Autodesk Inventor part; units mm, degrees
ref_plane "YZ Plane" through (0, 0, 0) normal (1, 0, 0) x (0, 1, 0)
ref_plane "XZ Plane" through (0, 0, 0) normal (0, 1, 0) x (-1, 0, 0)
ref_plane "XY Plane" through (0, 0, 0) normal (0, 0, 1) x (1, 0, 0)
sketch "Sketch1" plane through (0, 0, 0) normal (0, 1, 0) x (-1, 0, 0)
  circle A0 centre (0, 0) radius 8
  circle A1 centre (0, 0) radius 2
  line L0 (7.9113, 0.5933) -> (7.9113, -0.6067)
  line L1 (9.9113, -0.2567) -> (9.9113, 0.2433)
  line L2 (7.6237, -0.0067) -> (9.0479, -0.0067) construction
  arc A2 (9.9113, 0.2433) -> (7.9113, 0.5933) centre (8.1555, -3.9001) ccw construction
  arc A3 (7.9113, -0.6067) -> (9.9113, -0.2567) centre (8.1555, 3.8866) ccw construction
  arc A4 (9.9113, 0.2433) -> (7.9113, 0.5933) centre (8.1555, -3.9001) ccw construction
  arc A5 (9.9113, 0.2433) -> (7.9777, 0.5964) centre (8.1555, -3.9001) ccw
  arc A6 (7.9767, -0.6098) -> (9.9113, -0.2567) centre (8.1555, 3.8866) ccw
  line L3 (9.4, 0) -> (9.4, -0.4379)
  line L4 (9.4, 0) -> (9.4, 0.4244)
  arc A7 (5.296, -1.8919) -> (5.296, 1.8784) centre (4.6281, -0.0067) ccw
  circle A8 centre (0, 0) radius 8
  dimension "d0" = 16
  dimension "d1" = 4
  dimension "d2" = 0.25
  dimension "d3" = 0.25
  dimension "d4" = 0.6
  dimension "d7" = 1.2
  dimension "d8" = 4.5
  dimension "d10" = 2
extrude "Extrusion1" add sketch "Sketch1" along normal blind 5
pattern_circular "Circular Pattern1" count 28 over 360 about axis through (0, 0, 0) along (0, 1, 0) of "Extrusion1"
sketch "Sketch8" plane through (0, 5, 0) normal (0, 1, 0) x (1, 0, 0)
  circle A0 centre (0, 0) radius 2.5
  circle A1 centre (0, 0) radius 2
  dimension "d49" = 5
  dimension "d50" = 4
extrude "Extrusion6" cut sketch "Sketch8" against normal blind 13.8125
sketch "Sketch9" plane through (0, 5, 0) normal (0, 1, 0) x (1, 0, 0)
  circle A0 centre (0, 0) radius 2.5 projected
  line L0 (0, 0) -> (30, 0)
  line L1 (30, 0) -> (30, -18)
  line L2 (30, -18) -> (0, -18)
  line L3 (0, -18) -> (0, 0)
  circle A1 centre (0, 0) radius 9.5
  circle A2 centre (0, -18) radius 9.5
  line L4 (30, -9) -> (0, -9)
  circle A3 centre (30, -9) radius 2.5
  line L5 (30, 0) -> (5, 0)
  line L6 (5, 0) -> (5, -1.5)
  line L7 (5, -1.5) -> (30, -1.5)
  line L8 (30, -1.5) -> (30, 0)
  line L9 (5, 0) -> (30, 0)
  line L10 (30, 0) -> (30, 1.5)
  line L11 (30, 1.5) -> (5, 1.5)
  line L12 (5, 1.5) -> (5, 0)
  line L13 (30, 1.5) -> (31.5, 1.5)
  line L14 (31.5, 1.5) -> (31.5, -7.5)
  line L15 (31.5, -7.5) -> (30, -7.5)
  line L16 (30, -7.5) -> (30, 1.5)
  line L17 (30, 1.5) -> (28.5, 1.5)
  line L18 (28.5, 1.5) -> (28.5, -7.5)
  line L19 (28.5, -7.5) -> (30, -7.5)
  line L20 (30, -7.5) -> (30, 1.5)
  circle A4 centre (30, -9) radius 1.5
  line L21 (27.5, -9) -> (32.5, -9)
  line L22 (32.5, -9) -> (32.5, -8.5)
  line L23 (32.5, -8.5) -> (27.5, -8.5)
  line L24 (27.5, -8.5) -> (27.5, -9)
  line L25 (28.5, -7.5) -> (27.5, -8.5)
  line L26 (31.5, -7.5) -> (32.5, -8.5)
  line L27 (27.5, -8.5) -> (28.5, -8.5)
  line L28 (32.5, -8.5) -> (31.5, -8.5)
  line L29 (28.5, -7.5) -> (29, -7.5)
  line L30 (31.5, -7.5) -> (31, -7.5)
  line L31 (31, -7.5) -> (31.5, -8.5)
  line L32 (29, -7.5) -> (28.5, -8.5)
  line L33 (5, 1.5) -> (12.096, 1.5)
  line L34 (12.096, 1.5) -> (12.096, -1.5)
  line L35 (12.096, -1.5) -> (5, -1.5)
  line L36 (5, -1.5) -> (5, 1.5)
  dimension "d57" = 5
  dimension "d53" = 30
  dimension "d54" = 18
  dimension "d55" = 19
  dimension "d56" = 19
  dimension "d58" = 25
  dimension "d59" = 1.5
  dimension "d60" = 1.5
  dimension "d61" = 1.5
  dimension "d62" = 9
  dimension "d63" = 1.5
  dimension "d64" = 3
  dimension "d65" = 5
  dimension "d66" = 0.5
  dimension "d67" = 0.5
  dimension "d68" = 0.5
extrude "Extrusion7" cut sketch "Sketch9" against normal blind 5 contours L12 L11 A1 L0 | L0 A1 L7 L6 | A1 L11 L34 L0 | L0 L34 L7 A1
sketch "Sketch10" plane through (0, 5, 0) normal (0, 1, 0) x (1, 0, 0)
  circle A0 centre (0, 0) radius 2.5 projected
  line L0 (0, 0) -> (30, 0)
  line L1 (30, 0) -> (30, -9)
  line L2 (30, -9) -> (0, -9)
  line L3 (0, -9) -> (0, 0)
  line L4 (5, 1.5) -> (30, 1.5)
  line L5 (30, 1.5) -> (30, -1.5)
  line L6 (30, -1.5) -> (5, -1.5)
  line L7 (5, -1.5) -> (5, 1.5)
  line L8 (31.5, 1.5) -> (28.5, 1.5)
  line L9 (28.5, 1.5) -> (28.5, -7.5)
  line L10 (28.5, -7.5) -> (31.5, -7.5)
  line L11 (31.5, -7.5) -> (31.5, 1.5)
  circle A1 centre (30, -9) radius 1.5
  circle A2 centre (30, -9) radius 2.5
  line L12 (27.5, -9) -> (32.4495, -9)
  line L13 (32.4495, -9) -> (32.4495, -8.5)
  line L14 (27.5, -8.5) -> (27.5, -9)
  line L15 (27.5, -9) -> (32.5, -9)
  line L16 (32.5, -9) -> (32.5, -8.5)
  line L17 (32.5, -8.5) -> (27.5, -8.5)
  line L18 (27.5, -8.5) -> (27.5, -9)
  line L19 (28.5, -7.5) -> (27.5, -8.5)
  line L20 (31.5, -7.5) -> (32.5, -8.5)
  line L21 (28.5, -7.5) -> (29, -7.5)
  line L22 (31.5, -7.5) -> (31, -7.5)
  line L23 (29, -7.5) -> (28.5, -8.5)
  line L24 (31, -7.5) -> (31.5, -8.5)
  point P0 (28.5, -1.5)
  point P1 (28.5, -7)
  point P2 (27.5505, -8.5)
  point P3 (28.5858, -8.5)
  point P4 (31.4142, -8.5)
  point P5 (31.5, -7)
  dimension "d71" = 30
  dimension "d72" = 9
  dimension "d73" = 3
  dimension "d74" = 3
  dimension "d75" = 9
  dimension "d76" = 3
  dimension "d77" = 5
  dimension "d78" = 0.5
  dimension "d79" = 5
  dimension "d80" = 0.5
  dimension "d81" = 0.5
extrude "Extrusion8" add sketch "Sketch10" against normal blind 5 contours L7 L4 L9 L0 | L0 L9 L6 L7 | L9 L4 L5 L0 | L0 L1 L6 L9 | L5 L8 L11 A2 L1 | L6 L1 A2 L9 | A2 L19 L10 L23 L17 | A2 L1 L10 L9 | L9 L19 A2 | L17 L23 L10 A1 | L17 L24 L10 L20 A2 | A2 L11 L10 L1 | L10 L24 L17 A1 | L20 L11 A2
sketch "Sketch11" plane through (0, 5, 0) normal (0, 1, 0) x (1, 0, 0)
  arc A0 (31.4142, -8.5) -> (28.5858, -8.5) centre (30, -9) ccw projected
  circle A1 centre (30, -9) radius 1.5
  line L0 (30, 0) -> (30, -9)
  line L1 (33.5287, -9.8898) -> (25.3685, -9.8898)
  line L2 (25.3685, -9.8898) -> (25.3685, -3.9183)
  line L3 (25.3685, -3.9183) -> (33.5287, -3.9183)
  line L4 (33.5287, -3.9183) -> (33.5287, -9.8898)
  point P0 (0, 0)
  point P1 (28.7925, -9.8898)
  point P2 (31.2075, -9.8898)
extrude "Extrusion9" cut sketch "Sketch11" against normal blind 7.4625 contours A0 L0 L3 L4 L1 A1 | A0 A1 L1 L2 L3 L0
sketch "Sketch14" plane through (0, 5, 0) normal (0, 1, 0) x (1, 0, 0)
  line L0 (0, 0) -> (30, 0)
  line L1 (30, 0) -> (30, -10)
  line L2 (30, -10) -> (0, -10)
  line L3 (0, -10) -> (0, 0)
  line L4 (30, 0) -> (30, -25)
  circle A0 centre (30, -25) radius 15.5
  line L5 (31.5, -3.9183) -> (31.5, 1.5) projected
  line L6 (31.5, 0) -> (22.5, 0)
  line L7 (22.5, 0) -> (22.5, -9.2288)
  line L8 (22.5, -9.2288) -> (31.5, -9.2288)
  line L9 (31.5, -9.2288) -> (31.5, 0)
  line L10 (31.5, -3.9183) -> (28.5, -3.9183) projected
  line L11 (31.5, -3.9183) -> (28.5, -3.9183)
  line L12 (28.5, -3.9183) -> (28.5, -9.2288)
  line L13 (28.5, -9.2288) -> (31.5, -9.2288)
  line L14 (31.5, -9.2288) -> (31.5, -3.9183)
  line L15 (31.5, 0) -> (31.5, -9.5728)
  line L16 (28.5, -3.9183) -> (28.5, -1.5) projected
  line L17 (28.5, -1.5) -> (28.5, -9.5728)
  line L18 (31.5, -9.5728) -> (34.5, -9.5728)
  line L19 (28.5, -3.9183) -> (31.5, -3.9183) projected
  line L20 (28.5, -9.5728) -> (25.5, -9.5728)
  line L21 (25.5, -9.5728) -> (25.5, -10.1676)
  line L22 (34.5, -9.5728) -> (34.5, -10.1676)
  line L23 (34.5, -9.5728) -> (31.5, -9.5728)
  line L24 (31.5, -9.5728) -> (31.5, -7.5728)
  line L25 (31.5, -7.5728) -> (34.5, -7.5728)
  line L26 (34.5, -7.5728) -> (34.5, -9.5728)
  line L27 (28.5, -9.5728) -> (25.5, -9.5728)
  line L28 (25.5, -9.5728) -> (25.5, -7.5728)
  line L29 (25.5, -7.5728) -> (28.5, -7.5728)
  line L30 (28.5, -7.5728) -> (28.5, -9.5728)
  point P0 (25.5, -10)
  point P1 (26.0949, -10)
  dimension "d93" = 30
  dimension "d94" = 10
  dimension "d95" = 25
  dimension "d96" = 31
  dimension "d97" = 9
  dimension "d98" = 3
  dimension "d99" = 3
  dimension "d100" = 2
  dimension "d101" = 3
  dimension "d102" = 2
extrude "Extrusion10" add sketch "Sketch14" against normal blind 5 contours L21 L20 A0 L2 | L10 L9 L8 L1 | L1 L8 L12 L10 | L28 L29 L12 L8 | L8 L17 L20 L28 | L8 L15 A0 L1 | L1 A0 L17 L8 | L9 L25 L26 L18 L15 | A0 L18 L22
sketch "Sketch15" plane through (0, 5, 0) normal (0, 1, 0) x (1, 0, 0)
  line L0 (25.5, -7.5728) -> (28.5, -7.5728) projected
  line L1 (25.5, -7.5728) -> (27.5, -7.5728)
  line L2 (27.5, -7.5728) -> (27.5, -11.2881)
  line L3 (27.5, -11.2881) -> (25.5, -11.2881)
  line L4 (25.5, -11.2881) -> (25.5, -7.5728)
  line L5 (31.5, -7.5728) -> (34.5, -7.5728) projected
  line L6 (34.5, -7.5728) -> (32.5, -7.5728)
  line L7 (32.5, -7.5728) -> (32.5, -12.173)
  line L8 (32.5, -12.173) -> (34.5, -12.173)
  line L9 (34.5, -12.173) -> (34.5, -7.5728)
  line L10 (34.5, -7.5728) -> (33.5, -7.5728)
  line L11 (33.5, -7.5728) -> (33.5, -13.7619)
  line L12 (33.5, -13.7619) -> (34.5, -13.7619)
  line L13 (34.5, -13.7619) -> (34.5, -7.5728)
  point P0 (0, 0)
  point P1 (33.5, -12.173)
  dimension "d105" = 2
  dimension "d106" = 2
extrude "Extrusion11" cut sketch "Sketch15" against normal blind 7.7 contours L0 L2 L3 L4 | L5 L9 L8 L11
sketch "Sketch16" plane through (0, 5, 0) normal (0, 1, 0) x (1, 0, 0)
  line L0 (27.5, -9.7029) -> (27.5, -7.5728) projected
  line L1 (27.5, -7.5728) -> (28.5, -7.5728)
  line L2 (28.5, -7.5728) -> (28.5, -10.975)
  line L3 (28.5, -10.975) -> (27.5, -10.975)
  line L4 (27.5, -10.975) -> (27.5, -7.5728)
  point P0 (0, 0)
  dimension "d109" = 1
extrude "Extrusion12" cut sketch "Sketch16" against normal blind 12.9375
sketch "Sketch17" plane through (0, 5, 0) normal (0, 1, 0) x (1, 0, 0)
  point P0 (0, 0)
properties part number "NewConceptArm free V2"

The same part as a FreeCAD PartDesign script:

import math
import FreeCAD as App
import Part
import Sketcher
from FreeCAD import Vector


def add_polygon(sketch, points):
    """Adds a closed chain of lines whose ends are joined by coincident constraints."""
    first, n = sketch.GeometryCount, len(points)
    for a, b in zip(points, points[1:] + points[:1]):
        sketch.addGeometry(Part.LineSegment(App.Vector(*a, 0), App.Vector(*b, 0)), False)
    for i in range(n):
        sketch.addConstraint(Sketcher.Constraint("Coincident", first + i, 2, first + (i + 1) % n, 1))

doc = App.newDocument("Part")
body = doc.addObject("PartDesign::Body", "Body")

# Sketch on XZ plane
sketch1 = body.newObject("Sketcher::SketchObject", "Sketch")
sketch1.AttachmentSupport = (doc.getObject("XZ_Plane"), [""])
sketch1.MapMode = "FlatFace"
sketch1.addGeometry([
    Part.ArcOfCircle(Part.Circle(Vector(0, 0, 0), Vector(0, 0, 1), 8), math.radians(-176), math.radians(176)),  # 0
    Part.ArcOfCircle(Part.Circle(Vector(-8.2, 3.9, 0), Vector(0, 0, 1), 4.5), math.radians(-113), math.radians(-88)),  # 1
    Part.LineSegment(Vector(-9.9, -0.3, 0), Vector(-9.9, 0.2, 0)),  # 2
    Part.ArcOfCircle(Part.Circle(Vector(-8.2, -3.9, 0), Vector(0, 0, 1), 4.5), math.radians(88), math.radians(113)),  # 3
    Part.Circle(Vector(0, 0, 0), Vector(0, 0, 1), 2),  # 4
], False)
sketch1.addConstraint([
    Sketcher.Constraint("Coincident", 0, 1, 1, 2),
    Sketcher.Constraint("Coincident", 1, 1, 2, 1),
    Sketcher.Constraint("Coincident", 2, 2, 3, 2),
    Sketcher.Constraint("Coincident", 3, 1, 0, 2),
    Sketcher.Constraint("Vertical", 2),
    Sketcher.Constraint("Coincident", 0, 3, -1, 1),
    Sketcher.Constraint("Coincident", 4, 3, -1, 1),
    Sketcher.Constraint("Diameter", 4, 4.0),
    Sketcher.Constraint("Radius", 0, 8.0),
    Sketcher.Constraint("Radius", 1, 4.5),
    Sketcher.Constraint("DistanceY", 2, 1, 2, 2, 0.5),
    Sketcher.Constraint("Radius", 3, 4.499),
    Sketcher.Constraint("DistanceY", 3, 3, -1, 1, 3.899),
    Sketcher.Constraint("DistanceX", 3, 3, 0, 1, 0.179),
    Sketcher.Constraint("DistanceY", 0, 1, 2, 2, 0.853),
    Sketcher.Constraint("DistanceX", 3, 1, 0, 1, 0.001),
])
pad1 = body.newObject("PartDesign::Pad", "Pad")
pad1.Profile = sketch1
pad1.Length = 5
pad1.Reversed = True
doc.recompute()

polarpattern = body.newObject("PartDesign::PolarPattern", "PolarPattern")
polarpattern.Originals = [pad1]
polarpattern.Axis = (doc.getObject("Y_Axis"), [""])
polarpattern.Angle = 360
polarpattern.Occurrences = 28
body.Tip = polarpattern

# Sketch on XZ plane
sketch2 = body.newObject("Sketcher::SketchObject", "Sketch001")
sketch2.AttachmentSupport = (doc.getObject("XZ_Plane"), [""])
sketch2.MapMode = "FlatFace"
sketch2.AttachmentOffset = App.Placement(Vector(0, 0, -5), App.Rotation())
sketch2.addGeometry([
    Part.Circle(Vector(0, 0, 0), Vector(0, 0, 1), 2.5),
    Part.Circle(Vector(0, 0, 0), Vector(0, 0, 1), 2),
], False)
sketch2.addConstraint([
    Sketcher.Constraint("Coincident", 0, 3, -1, 1),
    Sketcher.Constraint("Coincident", 1, 3, -1, 1),
    Sketcher.Constraint("Diameter", 0, 5.0),
    Sketcher.Constraint("Diameter", 1, 4.0),
])
pocket1 = body.newObject("PartDesign::Pocket", "Pocket")
pocket1.Profile = sketch2
pocket1.Length = 13.8125
pocket1.Reversed = True

# Sketch on XZ plane
sketch3 = body.newObject("Sketcher::SketchObject", "Sketch002")
sketch3.AttachmentSupport = (doc.getObject("XZ_Plane"), [""])
sketch3.MapMode = "FlatFace"
sketch3.AttachmentOffset = App.Placement(Vector(0, 0, -5), App.Rotation())
add_polygon(sketch3, [(5, -1.5), (5, 1.5), (12.1, 1.5), (12.1, -1.5)])  # lines 0-3
sketch3.addConstraint([
    Sketcher.Constraint("Vertical", 0),
    Sketcher.Constraint("Horizontal", 1),
    Sketcher.Constraint("Vertical", 2),
    Sketcher.Constraint("Horizontal", 3),
    Sketcher.Constraint("DistanceY", 0, 1, 0, 2, 3.0),
    Sketcher.Constraint("DistanceX", -1, 1, 0, 2, 5.0),
    Sketcher.Constraint("DistanceY", -1, 1, 0, 2, 1.5),
    Sketcher.Constraint("DistanceX", 1, 1, 1, 2, 7.096),
])
pocket2 = body.newObject("PartDesign::Pocket", "Pocket001")
pocket2.Profile = sketch3
pocket2.Length = 5
pocket2.Reversed = True

# Sketch on XZ plane
sketch4 = body.newObject("Sketcher::SketchObject", "Sketch003")
sketch4.AttachmentSupport = (doc.getObject("XZ_Plane"), [""])
sketch4.MapMode = "FlatFace"
sketch4.AttachmentOffset = App.Placement(Vector(0, 0, -5), App.Rotation())
sketch4.addGeometry([
    Part.LineSegment(Vector(5, -1.5, 0), Vector(5, 1.5, 0)),  # 0
    Part.LineSegment(Vector(5, 1.5, 0), Vector(28.5, 1.5, 0)),  # 1
    Part.LineSegment(Vector(28.5, 1.5, 0), Vector(28.5, 7, 0)),  # 2
    Part.ArcOfCircle(Part.Circle(Vector(30, 9, 0), Vector(0, 0, 1), 2.5), math.radians(-168), math.radians(-127)),  # 3
    Part.LineSegment(Vector(27.6, 8.5, 0), Vector(28.6, 8.5, 0)),  # 4
    Part.ArcOfCircle(Part.Circle(Vector(30, 9, 0), Vector(0, 0, 1), 1.5), math.radians(-161), math.radians(-19)),  # 5
    Part.LineSegment(Vector(31.4, 8.5, 0), Vector(32.4, 8.5, 0)),  # 6
    Part.ArcOfCircle(Part.Circle(Vector(30, 9, 0), Vector(0, 0, 1), 2.5), math.radians(-53), math.radians(-12)),  # 7
    Part.LineSegment(Vector(31.5, 7, 0), Vector(31.5, -1.5, 0)),  # 8
    Part.LineSegment(Vector(31.5, -1.5, 0), Vector(5, -1.5, 0)),  # 9
], False)
sketch4.addConstraint([
    Sketcher.Constraint("Coincident", 0, 2, 1, 1),
    Sketcher.Constraint("Coincident", 1, 2, 2, 1),
    Sketcher.Constraint("Coincident", 2, 2, 3, 2),
    Sketcher.Constraint("Coincident", 3, 1, 4, 1),
    Sketcher.Constraint("Coincident", 4, 2, 5, 1),
    Sketcher.Constraint("Coincident", 5, 2, 6, 1),
    Sketcher.Constraint("Coincident", 6, 2, 7, 2),
    Sketcher.Constraint("Coincident", 7, 1, 8, 1),
    Sketcher.Constraint("Coincident", 8, 2, 9, 1),
    Sketcher.Constraint("Coincident", 9, 2, 0, 1),
    Sketcher.Constraint("Vertical", 0),
    Sketcher.Constraint("Horizontal", 1),
    Sketcher.Constraint("Vertical", 2),
    Sketcher.Constraint("Horizontal", 4),
    Sketcher.Constraint("Horizontal", 6),
    Sketcher.Constraint("Vertical", 8),
    Sketcher.Constraint("Horizontal", 9),
    Sketcher.Constraint("Coincident", 5, 3, 3, 3),
    Sketcher.Constraint("Coincident", 7, 3, 3, 3),
    Sketcher.Constraint("Equal", 3, 7),
    Sketcher.Constraint("Horizontal", 4, 2, 5, 2),
    Sketcher.Constraint("Horizontal", 2, 2, 7, 1),
    Sketcher.Constraint("Radius", 3, 2.5),
    Sketcher.Constraint("Radius", 5, 1.5),
    Sketcher.Constraint("DistanceY", 0, 1, 0, 2, 3.0),
    Sketcher.Constraint("DistanceX", -1, 1, 3, 3, 30.0),
    Sketcher.Constraint("DistanceY", -1, 1, 3, 3, 9.0),
    Sketcher.Constraint("DistanceX", -1, 1, 0, 2, 5.0),
    Sketcher.Constraint("DistanceX", 1, 2, 8, 2, 3.0),
    Sketcher.Constraint("DistanceY", 3, 1, 3, 3, 0.5),
    Sketcher.Constraint("DistanceY", 2, 1, 2, 2, 5.5),
])
pad2 = body.newObject("PartDesign::Pad", "Pad001")
pad2.Profile = sketch4
pad2.Length = 5

# Sketch on XZ plane
sketch5 = body.newObject("Sketcher::SketchObject", "Sketch004")
sketch5.AttachmentSupport = (doc.getObject("XZ_Plane"), [""])
sketch5.MapMode = "FlatFace"
sketch5.AttachmentOffset = App.Placement(Vector(0, 0, -5), App.Rotation())
sketch5.addGeometry([
    Part.LineSegment(Vector(31.2, 9.9, 0), Vector(33.5, 9.9, 0)),  # 0
    Part.LineSegment(Vector(33.5, 9.9, 0), Vector(33.5, 3.9, 0)),  # 1
    Part.LineSegment(Vector(33.5, 3.9, 0), Vector(25.4, 3.9, 0)),  # 2
    Part.LineSegment(Vector(25.4, 3.9, 0), Vector(25.4, 9.9, 0)),  # 3
    Part.LineSegment(Vector(25.4, 9.9, 0), Vector(28.8, 9.9, 0)),  # 4
    Part.ArcOfCircle(Part.Circle(Vector(30, 9, 0), Vector(0, 0, 1), 1.5), math.radians(144), math.radians(396)),  # 5
], False)
sketch5.addConstraint([
    Sketcher.Constraint("Coincident", 0, 2, 1, 1),
    Sketcher.Constraint("Coincident", 1, 2, 2, 1),
    Sketcher.Constraint("Coincident", 2, 2, 3, 1),
    Sketcher.Constraint("Coincident", 3, 2, 4, 1),
    Sketcher.Constraint("Coincident", 4, 2, 5, 1),
    Sketcher.Constraint("Coincident", 5, 2, 0, 1),
    Sketcher.Constraint("Horizontal", 0),
    Sketcher.Constraint("Vertical", 1),
    Sketcher.Constraint("Horizontal", 2),
    Sketcher.Constraint("Vertical", 3),
    Sketcher.Constraint("Horizontal", 4),
    Sketcher.Constraint("Horizontal", 0, 2, 3, 2),
    Sketcher.Constraint("Radius", 5, 1.5),
    Sketcher.Constraint("DistanceX", -1, 1, 5, 3, 30.0),
    Sketcher.Constraint("DistanceY", -1, 1, 5, 3, 9.0),
    Sketcher.Constraint("DistanceX", 0, 1, 0, 2, 2.321),
    Sketcher.Constraint("DistanceX", 4, 1, 4, 2, 3.424),
    Sketcher.Constraint("DistanceX", 2, 2, 2, 1, 8.1602),
    Sketcher.Constraint("DistanceY", 1, 2, 1, 1, 5.9715),
])
pocket3 = body.newObject("PartDesign::Pocket", "Pocket002")
pocket3.Profile = sketch5
pocket3.Length = 7.4625
pocket3.Reversed = True

# Sketch on XZ plane
sketch6 = body.newObject("Sketcher::SketchObject", "Sketch005")
sketch6.AttachmentSupport = (doc.getObject("XZ_Plane"), [""])
sketch6.MapMode = "FlatFace"
sketch6.AttachmentOffset = App.Placement(Vector(0, 0, -5), App.Rotation())
sketch6.addGeometry([
    Part.LineSegment(Vector(25.5, 10, 0), Vector(26.1, 10, 0)),  # 0
    Part.ArcOfCircle(Part.Circle(Vector(30, 25, 0), Vector(0, 0, 1), 15.5), math.radians(-105), math.radians(-73)),  # 1
    Part.LineSegment(Vector(34.5, 10.2, 0), Vector(34.5, 7.6, 0)),  # 2
    Part.LineSegment(Vector(34.5, 7.6, 0), Vector(31.5, 7.6, 0)),  # 3
    Part.LineSegment(Vector(31.5, 7.6, 0), Vector(31.5, 3.9, 0)),  # 4
    Part.LineSegment(Vector(31.5, 3.9, 0), Vector(28.5, 3.9, 0)),  # 5
    Part.LineSegment(Vector(28.5, 3.9, 0), Vector(28.5, 7.6, 0)),  # 6
    Part.LineSegment(Vector(28.5, 7.6, 0), Vector(25.5, 7.6, 0)),  # 7
    Part.LineSegment(Vector(25.5, 7.6, 0), Vector(25.5, 10, 0)),  # 8
], False)
sketch6.addConstraint([
    Sketcher.Constraint("Coincident", 0, 2, 1, 1),
    Sketcher.Constraint("Coincident", 1, 2, 2, 1),
    Sketcher.Constraint("Coincident", 2, 2, 3, 1),
    Sketcher.Constraint("Coincident", 3, 2, 4, 1),
    Sketcher.Constraint("Coincident", 4, 2, 5, 1),
    Sketcher.Constraint("Coincident", 5, 2, 6, 1),
    Sketcher.Constraint("Coincident", 6, 2, 7, 1),
    Sketcher.Constraint("Coincident", 7, 2, 8, 1),
    Sketcher.Constraint("Coincident", 8, 2, 0, 1),
    Sketcher.Constraint("Horizontal", 0),
    Sketcher.Constraint("Vertical", 2),
    Sketcher.Constraint("Horizontal", 3),
    Sketcher.Constraint("Vertical", 4),
    Sketcher.Constraint("Horizontal", 5),
    Sketcher.Constraint("Vertical", 6),
    Sketcher.Constraint("Horizontal", 7),
    Sketcher.Constraint("Vertical", 8),
    Sketcher.Constraint("Horizontal", 3, 2, 6, 2),
    Sketcher.Constraint("Equal", 3, 5),
    Sketcher.Constraint("Equal", 5, 7),
    Sketcher.Constraint("Radius", 1, 15.5),
    Sketcher.Constraint("DistanceX", 3, 2, 3, 1, 3.0),
    Sketcher.Constraint("DistanceX", -1, 1, 1, 3, 30.0),
    Sketcher.Constraint("DistanceY", -1, 1, 1, 3, 25.0),
    Sketcher.Constraint("DistanceY", -1, 1, 0, 2, 10.0),
    Sketcher.Constraint("DistanceX", -1, 1, 1, 2, 34.5),
    Sketcher.Constraint("DistanceY", 2, 2, 2, 1, 2.5948),
    Sketcher.Constraint("DistanceY", 4, 2, 4, 1, 3.6545),
])
pad3 = body.newObject("PartDesign::Pad", "Pad002")
pad3.Profile = sketch6
pad3.Length = 5

# Sketch on XZ plane
sketch7 = body.newObject("Sketcher::SketchObject", "Sketch006")
sketch7.AttachmentSupport = (doc.getObject("XZ_Plane"), [""])
sketch7.MapMode = "FlatFace"
sketch7.AttachmentOffset = App.Placement(Vector(0, 0, -5), App.Rotation())
add_polygon(sketch7, [(27.5, 7.6), (25.5, 7.6), (25.5, 11.3), (27.5, 11.3)])  # lines 0-3
add_polygon(sketch7, [(34.5, 7.6), (33.5, 7.6), (33.5, 12.2), (34.5, 12.2)])  # lines 4-7
sketch7.addConstraint([
    Sketcher.Constraint("Horizontal", 0),
    Sketcher.Constraint("Vertical", 1),
    Sketcher.Constraint("Horizontal", 2),
    Sketcher.Constraint("Vertical", 3),
    Sketcher.Constraint("Horizontal", 4),
    Sketcher.Constraint("Vertical", 5),
    Sketcher.Constraint("Horizontal", 6),
    Sketcher.Constraint("Vertical", 7),
    Sketcher.Constraint("Horizontal", 3, 2, 4, 2),
    Sketcher.Constraint("DistanceX", 0, 2, 0, 1, 2.0),
    Sketcher.Constraint("DistanceX", 4, 2, 4, 1, 1.0),
    Sketcher.Constraint("DistanceX", 3, 2, 4, 2, 6.0),
    Sketcher.Constraint("DistanceX", -1, 1, 0, 2, 25.5),
    Sketcher.Constraint("DistanceY", 1, 1, 1, 2, 3.7153),
    Sketcher.Constraint("DistanceY", 5, 1, 5, 2, 4.6002),
    Sketcher.Constraint("DistanceY", -1, 1, 1, 2, 11.288),
])
pocket4 = body.newObject("PartDesign::Pocket", "Pocket003")
pocket4.Profile = sketch7
pocket4.Length = 7.7
pocket4.Reversed = True

# Sketch on XZ plane
sketch8 = body.newObject("Sketcher::SketchObject", "Sketch007")
sketch8.AttachmentSupport = (doc.getObject("XZ_Plane"), [""])
sketch8.MapMode = "FlatFace"
sketch8.AttachmentOffset = App.Placement(Vector(0, 0, -5), App.Rotation())
add_polygon(sketch8, [(27.5, 7.6), (27.5, 11), (28.5, 11), (28.5, 7.6)])  # lines 0-3
sketch8.addConstraint([
    Sketcher.Constraint("Vertical", 0),
    Sketcher.Constraint("Horizontal", 1),
    Sketcher.Constraint("Vertical", 2),
    Sketcher.Constraint("Horizontal", 3),
    Sketcher.Constraint("DistanceX", 1, 1, 1, 2, 1.0),
    Sketcher.Constraint("DistanceX", -1, 1, 0, 2, 27.5),
    Sketcher.Constraint("DistanceY", 0, 1, 0, 2, 3.4022),
    Sketcher.Constraint("DistanceY", -1, 1, 0, 2, 10.975),
])
pocket5 = body.newObject("PartDesign::Pocket", "Pocket004")
pocket5.Profile = sketch8
pocket5.Length = 12.9375
pocket5.Reversed = True

doc.recompute()
